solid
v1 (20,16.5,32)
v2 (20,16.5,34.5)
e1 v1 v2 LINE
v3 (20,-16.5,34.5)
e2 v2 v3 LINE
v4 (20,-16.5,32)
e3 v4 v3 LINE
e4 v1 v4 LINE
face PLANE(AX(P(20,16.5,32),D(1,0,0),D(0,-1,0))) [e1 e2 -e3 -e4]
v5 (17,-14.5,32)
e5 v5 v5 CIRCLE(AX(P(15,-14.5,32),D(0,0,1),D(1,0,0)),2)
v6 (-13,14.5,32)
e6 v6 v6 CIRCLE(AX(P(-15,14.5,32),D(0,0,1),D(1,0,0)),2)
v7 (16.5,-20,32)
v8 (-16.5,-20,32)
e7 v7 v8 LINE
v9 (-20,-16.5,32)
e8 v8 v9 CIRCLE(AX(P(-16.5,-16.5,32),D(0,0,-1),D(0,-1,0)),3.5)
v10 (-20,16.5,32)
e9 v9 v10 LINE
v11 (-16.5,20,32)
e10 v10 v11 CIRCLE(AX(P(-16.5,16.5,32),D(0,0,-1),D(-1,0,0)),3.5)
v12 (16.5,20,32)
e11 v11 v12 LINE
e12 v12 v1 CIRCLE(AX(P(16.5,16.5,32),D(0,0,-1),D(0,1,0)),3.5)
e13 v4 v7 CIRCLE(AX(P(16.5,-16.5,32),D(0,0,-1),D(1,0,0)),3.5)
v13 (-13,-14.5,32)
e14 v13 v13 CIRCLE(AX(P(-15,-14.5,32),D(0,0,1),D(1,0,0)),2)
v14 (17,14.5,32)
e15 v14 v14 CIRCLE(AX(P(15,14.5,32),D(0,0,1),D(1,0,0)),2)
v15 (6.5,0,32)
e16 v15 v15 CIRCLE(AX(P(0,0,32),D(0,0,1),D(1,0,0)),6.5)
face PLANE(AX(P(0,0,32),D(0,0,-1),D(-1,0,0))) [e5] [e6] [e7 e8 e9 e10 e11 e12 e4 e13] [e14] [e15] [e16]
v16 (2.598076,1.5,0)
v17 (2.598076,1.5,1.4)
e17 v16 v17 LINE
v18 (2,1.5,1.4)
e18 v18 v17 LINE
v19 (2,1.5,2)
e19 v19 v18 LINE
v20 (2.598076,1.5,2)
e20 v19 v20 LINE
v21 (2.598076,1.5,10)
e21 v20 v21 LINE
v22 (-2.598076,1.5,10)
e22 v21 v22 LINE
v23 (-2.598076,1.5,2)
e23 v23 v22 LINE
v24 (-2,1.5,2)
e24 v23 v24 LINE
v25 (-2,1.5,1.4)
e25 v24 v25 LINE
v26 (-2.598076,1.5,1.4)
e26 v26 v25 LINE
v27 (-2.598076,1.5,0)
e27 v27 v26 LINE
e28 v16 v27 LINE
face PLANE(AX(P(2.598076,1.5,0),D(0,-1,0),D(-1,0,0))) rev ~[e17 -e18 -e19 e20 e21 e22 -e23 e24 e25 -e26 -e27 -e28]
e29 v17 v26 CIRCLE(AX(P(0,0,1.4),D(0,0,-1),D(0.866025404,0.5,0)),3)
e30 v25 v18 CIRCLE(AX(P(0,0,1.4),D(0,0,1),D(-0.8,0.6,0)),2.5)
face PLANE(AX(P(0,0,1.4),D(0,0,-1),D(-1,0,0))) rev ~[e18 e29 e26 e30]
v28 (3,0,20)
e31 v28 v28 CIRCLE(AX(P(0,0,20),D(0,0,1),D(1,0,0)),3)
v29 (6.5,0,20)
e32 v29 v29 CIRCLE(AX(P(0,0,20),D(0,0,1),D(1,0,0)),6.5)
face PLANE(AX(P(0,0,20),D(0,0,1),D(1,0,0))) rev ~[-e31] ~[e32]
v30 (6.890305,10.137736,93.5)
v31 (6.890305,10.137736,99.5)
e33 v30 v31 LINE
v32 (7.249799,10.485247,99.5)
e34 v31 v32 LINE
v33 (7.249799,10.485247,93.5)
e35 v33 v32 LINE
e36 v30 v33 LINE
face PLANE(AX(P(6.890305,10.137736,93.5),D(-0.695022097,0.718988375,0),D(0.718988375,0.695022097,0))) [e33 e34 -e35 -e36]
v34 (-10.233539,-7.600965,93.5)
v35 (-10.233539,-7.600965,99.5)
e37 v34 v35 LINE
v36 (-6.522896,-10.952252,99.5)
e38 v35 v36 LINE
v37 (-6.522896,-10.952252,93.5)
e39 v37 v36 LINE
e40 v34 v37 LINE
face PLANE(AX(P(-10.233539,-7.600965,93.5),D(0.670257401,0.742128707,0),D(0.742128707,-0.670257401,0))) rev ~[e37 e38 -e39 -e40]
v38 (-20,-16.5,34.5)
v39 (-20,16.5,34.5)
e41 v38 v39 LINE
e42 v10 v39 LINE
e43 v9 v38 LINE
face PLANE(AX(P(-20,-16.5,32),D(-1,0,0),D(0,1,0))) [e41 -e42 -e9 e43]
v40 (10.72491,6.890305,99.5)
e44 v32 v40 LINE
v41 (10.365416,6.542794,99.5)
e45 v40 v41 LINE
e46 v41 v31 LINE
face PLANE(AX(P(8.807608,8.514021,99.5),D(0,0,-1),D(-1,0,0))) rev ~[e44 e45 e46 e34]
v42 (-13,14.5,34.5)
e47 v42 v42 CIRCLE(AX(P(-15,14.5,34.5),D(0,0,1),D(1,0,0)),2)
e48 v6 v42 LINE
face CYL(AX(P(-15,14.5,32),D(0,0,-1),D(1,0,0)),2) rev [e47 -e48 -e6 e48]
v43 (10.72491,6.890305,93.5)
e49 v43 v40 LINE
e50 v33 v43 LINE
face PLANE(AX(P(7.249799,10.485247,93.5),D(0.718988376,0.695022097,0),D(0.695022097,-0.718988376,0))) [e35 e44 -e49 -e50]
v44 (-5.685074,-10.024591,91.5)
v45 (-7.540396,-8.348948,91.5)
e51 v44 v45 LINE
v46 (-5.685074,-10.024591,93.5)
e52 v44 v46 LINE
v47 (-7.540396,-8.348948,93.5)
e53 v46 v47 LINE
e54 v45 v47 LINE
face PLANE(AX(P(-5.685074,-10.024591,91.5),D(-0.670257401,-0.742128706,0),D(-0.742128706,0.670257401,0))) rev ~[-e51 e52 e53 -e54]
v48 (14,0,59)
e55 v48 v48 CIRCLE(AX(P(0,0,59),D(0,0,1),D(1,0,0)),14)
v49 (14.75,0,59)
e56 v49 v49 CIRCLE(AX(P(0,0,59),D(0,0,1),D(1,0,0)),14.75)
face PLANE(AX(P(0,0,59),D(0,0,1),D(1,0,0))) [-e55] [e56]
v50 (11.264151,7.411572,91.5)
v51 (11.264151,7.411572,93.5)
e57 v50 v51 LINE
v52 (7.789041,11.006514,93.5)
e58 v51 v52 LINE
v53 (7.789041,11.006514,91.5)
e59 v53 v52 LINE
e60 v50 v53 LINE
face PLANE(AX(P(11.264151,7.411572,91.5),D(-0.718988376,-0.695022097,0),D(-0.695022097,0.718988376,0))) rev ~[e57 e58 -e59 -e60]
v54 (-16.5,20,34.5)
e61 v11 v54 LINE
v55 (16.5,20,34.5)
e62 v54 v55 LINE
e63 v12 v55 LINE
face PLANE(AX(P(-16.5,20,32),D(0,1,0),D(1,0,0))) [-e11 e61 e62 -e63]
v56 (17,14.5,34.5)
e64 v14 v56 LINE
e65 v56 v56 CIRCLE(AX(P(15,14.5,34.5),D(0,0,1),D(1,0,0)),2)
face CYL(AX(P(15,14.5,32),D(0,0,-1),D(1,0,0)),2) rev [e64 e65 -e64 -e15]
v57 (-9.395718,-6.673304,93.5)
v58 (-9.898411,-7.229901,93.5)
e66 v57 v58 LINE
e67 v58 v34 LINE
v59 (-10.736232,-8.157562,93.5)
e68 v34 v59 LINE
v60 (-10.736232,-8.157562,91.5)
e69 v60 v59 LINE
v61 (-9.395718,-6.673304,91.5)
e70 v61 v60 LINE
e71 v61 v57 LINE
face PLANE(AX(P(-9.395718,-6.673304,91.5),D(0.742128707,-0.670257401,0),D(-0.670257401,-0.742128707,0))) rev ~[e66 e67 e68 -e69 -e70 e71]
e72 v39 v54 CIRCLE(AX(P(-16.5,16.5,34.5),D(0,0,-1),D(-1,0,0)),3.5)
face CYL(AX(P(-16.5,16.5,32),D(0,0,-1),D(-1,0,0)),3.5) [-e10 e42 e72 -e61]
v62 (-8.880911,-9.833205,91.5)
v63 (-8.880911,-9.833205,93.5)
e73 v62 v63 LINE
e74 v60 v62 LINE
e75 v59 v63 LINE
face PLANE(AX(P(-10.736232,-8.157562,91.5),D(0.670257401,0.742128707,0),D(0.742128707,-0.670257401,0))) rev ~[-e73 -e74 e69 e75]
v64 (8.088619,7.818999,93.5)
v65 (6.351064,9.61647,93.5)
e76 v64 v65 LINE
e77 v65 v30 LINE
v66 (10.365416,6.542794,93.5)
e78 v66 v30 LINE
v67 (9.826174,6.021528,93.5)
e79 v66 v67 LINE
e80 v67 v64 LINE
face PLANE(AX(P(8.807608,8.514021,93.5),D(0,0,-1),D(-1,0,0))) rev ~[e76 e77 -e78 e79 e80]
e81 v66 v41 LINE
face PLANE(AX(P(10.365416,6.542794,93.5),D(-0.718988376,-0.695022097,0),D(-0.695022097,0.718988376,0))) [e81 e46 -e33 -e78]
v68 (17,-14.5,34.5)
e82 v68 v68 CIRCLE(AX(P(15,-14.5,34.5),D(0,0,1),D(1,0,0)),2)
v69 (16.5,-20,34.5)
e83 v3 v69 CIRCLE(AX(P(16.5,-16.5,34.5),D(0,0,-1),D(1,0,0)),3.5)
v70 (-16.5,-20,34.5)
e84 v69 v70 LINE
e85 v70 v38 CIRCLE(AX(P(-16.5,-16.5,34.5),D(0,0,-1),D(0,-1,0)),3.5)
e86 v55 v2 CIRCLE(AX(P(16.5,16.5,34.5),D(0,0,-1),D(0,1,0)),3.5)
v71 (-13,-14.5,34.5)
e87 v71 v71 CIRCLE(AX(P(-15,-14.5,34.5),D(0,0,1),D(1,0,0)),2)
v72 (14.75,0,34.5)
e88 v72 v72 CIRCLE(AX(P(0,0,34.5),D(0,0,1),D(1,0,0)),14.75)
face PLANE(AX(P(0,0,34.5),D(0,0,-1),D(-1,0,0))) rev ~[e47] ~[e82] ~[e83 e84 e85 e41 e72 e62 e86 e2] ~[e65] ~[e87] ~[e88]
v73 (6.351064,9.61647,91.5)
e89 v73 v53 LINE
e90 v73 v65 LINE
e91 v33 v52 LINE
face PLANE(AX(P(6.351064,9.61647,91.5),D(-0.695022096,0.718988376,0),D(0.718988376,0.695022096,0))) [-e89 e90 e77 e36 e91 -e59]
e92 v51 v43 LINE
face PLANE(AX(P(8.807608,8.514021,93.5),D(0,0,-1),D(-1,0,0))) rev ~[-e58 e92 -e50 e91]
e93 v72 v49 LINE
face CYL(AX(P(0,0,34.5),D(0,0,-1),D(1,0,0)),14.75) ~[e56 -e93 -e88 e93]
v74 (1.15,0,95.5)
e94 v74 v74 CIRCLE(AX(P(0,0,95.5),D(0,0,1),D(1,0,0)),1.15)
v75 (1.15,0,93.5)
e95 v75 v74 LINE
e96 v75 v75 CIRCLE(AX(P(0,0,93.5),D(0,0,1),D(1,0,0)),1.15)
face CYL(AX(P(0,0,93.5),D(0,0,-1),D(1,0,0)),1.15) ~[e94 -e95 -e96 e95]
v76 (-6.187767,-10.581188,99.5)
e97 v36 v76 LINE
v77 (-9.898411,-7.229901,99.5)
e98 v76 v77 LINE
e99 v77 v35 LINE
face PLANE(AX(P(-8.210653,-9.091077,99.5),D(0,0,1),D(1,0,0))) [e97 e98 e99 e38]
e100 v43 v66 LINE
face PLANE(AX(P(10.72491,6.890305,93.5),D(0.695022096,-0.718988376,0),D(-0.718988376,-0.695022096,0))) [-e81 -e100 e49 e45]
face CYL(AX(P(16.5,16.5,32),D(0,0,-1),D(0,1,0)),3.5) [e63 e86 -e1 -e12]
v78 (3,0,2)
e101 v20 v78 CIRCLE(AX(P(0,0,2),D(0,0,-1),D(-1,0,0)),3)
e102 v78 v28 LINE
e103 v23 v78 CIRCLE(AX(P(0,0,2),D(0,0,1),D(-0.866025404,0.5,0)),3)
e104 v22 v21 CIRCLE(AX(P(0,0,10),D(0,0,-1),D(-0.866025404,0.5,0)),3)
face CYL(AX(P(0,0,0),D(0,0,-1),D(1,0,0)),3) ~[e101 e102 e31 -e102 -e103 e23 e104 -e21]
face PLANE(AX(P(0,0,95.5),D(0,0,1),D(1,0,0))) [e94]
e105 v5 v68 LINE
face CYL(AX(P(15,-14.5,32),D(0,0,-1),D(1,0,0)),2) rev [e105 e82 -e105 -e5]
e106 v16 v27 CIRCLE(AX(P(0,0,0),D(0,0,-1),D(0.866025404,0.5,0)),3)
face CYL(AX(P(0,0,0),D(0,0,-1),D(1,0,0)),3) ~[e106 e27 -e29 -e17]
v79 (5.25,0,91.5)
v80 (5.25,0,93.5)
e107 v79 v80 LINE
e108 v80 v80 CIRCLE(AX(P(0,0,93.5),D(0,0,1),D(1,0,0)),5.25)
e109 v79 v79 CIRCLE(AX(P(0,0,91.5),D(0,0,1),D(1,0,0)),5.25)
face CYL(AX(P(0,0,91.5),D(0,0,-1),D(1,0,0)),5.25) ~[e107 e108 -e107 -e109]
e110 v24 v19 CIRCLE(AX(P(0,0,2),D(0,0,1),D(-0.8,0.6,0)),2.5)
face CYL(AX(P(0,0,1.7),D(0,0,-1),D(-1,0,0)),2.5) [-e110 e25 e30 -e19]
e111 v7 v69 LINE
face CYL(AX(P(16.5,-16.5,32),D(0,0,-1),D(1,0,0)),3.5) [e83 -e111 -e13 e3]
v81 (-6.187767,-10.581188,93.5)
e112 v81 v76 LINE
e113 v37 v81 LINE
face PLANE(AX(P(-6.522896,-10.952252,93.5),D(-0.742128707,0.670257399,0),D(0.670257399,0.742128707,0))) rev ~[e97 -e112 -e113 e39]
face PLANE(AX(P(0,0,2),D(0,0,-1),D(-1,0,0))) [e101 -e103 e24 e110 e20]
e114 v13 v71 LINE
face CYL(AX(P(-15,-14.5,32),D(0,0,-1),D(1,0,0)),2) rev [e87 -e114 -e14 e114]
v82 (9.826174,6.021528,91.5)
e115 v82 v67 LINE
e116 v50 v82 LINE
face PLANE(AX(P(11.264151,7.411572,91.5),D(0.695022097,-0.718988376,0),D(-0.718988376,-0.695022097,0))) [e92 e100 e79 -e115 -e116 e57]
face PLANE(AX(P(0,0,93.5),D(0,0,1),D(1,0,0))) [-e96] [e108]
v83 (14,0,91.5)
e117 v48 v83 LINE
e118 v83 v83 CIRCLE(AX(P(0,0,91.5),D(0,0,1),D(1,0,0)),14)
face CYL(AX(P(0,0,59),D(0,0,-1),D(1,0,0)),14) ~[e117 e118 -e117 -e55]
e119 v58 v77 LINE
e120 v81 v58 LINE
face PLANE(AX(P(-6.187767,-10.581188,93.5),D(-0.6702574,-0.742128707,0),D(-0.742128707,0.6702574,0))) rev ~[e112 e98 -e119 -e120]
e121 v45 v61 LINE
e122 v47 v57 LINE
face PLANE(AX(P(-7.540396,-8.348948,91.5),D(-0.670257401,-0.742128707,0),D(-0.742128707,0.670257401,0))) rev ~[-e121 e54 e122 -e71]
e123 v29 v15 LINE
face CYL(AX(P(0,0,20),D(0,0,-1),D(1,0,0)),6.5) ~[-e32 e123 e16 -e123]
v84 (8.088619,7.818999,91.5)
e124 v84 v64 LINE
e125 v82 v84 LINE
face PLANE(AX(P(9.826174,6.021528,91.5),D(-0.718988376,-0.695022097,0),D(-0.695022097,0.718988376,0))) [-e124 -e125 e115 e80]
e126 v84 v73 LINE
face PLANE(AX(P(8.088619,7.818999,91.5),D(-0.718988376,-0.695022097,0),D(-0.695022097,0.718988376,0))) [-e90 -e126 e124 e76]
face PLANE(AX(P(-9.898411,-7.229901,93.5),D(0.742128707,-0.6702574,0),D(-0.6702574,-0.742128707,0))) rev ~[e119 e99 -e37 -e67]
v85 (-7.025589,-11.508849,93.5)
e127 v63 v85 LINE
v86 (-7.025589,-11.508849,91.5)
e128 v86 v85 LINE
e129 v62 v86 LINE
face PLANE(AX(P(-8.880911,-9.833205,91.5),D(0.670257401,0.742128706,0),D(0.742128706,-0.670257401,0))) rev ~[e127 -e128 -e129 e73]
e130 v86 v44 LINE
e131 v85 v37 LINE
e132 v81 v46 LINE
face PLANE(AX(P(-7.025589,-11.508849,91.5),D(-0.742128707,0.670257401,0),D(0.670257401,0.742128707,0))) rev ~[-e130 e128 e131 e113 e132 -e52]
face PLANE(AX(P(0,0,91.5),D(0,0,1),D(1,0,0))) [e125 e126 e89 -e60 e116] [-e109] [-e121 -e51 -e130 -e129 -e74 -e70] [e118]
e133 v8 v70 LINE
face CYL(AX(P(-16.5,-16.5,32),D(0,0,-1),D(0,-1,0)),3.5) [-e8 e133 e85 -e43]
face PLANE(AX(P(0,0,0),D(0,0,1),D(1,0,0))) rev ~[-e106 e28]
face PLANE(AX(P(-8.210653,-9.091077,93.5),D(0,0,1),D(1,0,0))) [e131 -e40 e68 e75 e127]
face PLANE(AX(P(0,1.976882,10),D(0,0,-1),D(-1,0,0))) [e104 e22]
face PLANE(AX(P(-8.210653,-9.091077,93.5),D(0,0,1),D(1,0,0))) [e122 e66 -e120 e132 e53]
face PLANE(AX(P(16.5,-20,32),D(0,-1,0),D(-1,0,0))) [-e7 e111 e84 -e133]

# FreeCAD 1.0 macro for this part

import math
import FreeCAD as App
import Part
import Sketcher

V = App.Vector


def add_polygon(sketch, points):
    """Adds a closed chain of lines whose ends are joined by coincident constraints."""
    first, n = sketch.GeometryCount, len(points)
    for a, b in zip(points, points[1:] + points[:1]):
        sketch.addGeometry(Part.LineSegment(App.Vector(*a, 0), App.Vector(*b, 0)), False)
    for i in range(n):
        sketch.addConstraint(Sketcher.Constraint("Coincident", first + i, 2, first + (i + 1) % n, 1))

doc = App.newDocument("Part")
body = doc.addObject("PartDesign::Body", "Body")

sketch1 = body.newObject("Sketcher::SketchObject", "Sketch")
sketch1.AttachmentSupport = (doc.getObject("XY_Plane"), [""])
sketch1.MapMode = "FlatFace"
sketch1.addGeometry(Part.Circle(V(0, 0, 0), V(0, 0, 1), 3), False)
sketch1.addConstraint([
    Sketcher.Constraint("Coincident", 0, 3, -1, 1),
    Sketcher.Constraint("Diameter", 0, 6.0),
])
pad1 = body.newObject("PartDesign::Pad", "Pad")
pad1.Profile = sketch1
pad1.Length = 20

sketch2 = body.newObject("Sketcher::SketchObject", "Sketch001")
sketch2.AttachmentSupport = (doc.getObject("XY_Plane"), [""])
sketch2.MapMode = "FlatFace"
sketch2.AttachmentOffset = App.Placement(V(0, 0, 20), App.Rotation())
sketch2.addGeometry(Part.Circle(V(0, 0, 0), V(0, 0, 1), 6), False)
sketch2.addConstraint([
    Sketcher.Constraint("Coincident", 0, 3, -1, 1),
    Sketcher.Constraint("Diameter", 0, 13.0),
])
pad2 = body.newObject("PartDesign::Pad", "Pad001")
pad2.Profile = sketch2
pad2.Length = 12

sketch3 = body.newObject("Sketcher::SketchObject", "Sketch002")
sketch3.AttachmentSupport = (doc.getObject("XY_Plane"), [""])
sketch3.MapMode = "FlatFace"
sketch3.AttachmentOffset = App.Placement(V(0, 0, 32), App.Rotation())
sketch3.addGeometry([
    Part.LineSegment(V(-16.5, -20, 0), V(16.5, -20, 0)),
    Part.ArcOfCircle(Part.Circle(V(16.5, -16.5, 0), V(0, 0, 1), 3.5), math.radians(-90), math.radians(0)),
    Part.LineSegment(V(20, -16.5, 0), V(20, 16.5, 0)),
    Part.ArcOfCircle(Part.Circle(V(16.5, 16.5, 0), V(0, 0, 1), 3.5), math.radians(0), math.radians(90)),
    Part.LineSegment(V(16.5, 20, 0), V(-16.5, 20, 0)),
    Part.ArcOfCircle(Part.Circle(V(-16.5, 16.5, 0), V(0, 0, 1), 3.5), math.radians(90), math.radians(180)),
    Part.LineSegment(V(-20, 16.5, 0), V(-20, -16.5, 0)),
    Part.ArcOfCircle(Part.Circle(V(-16.5, -16.5, 0), V(0, 0, 1), 3.5), math.radians(-180), math.radians(-90)),
    Part.Circle(V(15, -14.5, 0), V(0, 0, 1), 2),
    Part.Circle(V(-15, -14.5, 0), V(0, 0, 1), 2),
    Part.Circle(V(15, 14.5, 0), V(0, 0, 1), 2),
    Part.Circle(V(-15, 14.5, 0), V(0, 0, 1), 2),
], False)
sketch3.addConstraint([
    Sketcher.Constraint("Tangent", 0, 2, 1, 1),
    Sketcher.Constraint("Tangent", 1, 2, 2, 1),
    Sketcher.Constraint("Tangent", 2, 2, 3, 1),
    Sketcher.Constraint("Tangent", 3, 2, 4, 1),
    Sketcher.Constraint("Tangent", 4, 2, 5, 1),
    Sketcher.Constraint("Tangent", 5, 2, 6, 1),
    Sketcher.Constraint("Tangent", 6, 2, 7, 1),
    Sketcher.Constraint("Tangent", 7, 2, 0, 1),
    Sketcher.Constraint("Horizontal", 0),
    Sketcher.Constraint("Vertical", 2),
    Sketcher.Constraint("Horizontal", 4),
    Sketcher.Constraint("Vertical", 6),
    Sketcher.Constraint("Equal", 1, 3),
    Sketcher.Constraint("Equal", 3, 5),
    Sketcher.Constraint("Equal", 5, 7),
    Sketcher.Constraint("Equal", 8, 9),
    Sketcher.Constraint("Equal", 9, 10),
    Sketcher.Constraint("Equal", 10, 11),
    Sketcher.Constraint("Symmetric", 1, 3, 5, 3, -1, 1),
    Sketcher.Constraint("Symmetric", 9, 3, 10, 3, -1, 1),
    Sketcher.Constraint("Symmetric", 8, 3, 11, 3, -1, 1),
    Sketcher.Constraint("Symmetric", 8, 3, 9, 3, -2),
    Sketcher.Constraint("Equal", 4, 2),
    Sketcher.Constraint("Diameter", 8, 4.0),
    Sketcher.Constraint("Radius", 1, 3.5),
    Sketcher.Constraint("DistanceX", 0, 1, 0, 2, 33.0),
    Sketcher.Constraint("DistanceX", -1, 1, 8, 3, 15.0),
    Sketcher.Constraint("DistanceY", 1, 3, 8, 3, 2.0),
])
pad3 = body.newObject("PartDesign::Pad", "Pad002")
pad3.Profile = sketch3
pad3.Length = 2.5

sketch4 = body.newObject("Sketcher::SketchObject", "Sketch003")
sketch4.AttachmentSupport = (doc.getObject("XY_Plane"), [""])
sketch4.MapMode = "FlatFace"
sketch4.AttachmentOffset = App.Placement(V(0, 0, 34.5), App.Rotation())
sketch4.addGeometry(Part.Circle(V(0, 0, 0), V(0, 0, 1), 15), False)
sketch4.addConstraint([
    Sketcher.Constraint("Coincident", 0, 3, -1, 1),
    Sketcher.Constraint("Diameter", 0, 29.5),
])
pad4 = body.newObject("PartDesign::Pad", "Pad003")
pad4.Profile = sketch4
pad4.Length = 24.5

sketch5 = body.newObject("Sketcher::SketchObject", "Sketch004")
sketch5.AttachmentSupport = (doc.getObject("XY_Plane"), [""])
sketch5.MapMode = "FlatFace"
sketch5.AttachmentOffset = App.Placement(V(0, 0, 59), App.Rotation())
sketch5.addGeometry(Part.Circle(V(0, 0, 0), V(0, 0, 1), 14), False)
sketch5.addConstraint([
    Sketcher.Constraint("Coincident", 0, 3, -1, 1),
    Sketcher.Constraint("Diameter", 0, 28.0),
])
pad5 = body.newObject("PartDesign::Pad", "Pad004")
pad5.Profile = sketch5
pad5.Length = 32.5

sketch6 = body.newObject("Sketcher::SketchObject", "Sketch005")
sketch6.AttachmentSupport = (doc.getObject("XY_Plane"), [""])
sketch6.MapMode = "FlatFace"
sketch6.AttachmentOffset = App.Placement(V(0, 0, 91.5), App.Rotation())
sketch6.addGeometry(Part.Circle(V(0, 0, 0), V(0, 0, 1), 5), False)
sketch6.addConstraint([
    Sketcher.Constraint("Coincident", 0, 3, -1, 1),
    Sketcher.Constraint("Diameter", 0, 10.5),
])
pad6 = body.newObject("PartDesign::Pad", "Pad005")
pad6.Profile = sketch6
pad6.Length = 2

sketch7 = body.newObject("Sketcher::SketchObject", "Sketch006")
sketch7.AttachmentSupport = (doc.getObject("XY_Plane"), [""])
sketch7.MapMode = "FlatFace"
sketch7.AttachmentOffset = App.Placement(V(0, 0, 93.5), App.Rotation())
sketch7.addGeometry(Part.Circle(V(0, 0, 0), V(0, 0, 1), 1.1), False)
sketch7.addConstraint([
    Sketcher.Constraint("Coincident", 0, 3, -1, 1),
    Sketcher.Constraint("Diameter", 0, 2.3),
])
pad7 = body.newObject("PartDesign::Pad", "Pad006")
pad7.Profile = sketch7
pad7.Length = 2

sketch8 = body.newObject("Sketcher::SketchObject", "Sketch007")
sketch8.AttachmentSupport = (doc.getObject("XY_Plane"), [""])
sketch8.MapMode = "FlatFace"
sketch8.AttachmentOffset = App.Placement(V(0, 0, 91.5), App.Rotation())
add_polygon(sketch8, [(6.4, 9.6), (8.1, 7.8), (9.8, 6), (11.3, 7.4), (7.8, 11)])
add_polygon(sketch8, [(-9.4, -6.7), (-10.7, -8.2), (-8.9, -9.8), (-7, -11.5), (-5.7, -10), (-7.5, -8.3)])
sketch8.addConstraint([
    Sketcher.Constraint("Parallel", 0, 1),
    Sketcher.Constraint("Perpendicular", 1, 2),
    Sketcher.Constraint("Perpendicular", 2, 3),
    Sketcher.Constraint("Perpendicular", 3, 4),
    Sketcher.Constraint("Perpendicular", 5, 6),
    Sketcher.Constraint("Parallel", 6, 7),
    Sketcher.Constraint("Perpendicular", 7, 8),
    Sketcher.Constraint("Perpendicular", 8, 9),
    Sketcher.Constraint("Parallel", 9, 10),
    Sketcher.Constraint("Equal", 0, 1),
    Sketcher.Constraint("Equal", 4, 5),
    Sketcher.Constraint("Equal", 1, 6),
    Sketcher.Constraint("Equal", 6, 7),
    Sketcher.Constraint("Equal", 7, 9),
    Sketcher.Constraint("Distance", 2, 2.0),
    Sketcher.Constraint("Distance", 3, 5.0),
    Sketcher.Constraint("DistanceY", -1, 1, 0, 2, 7.818999),
    Sketcher.Constraint("DistanceY", 7, 2, 9, 2, 3.159901),
    Sketcher.Constraint("DistanceX", -1, 1, 0, 2, 8.088619),
    Sketcher.Constraint("DistanceX", -1, 1, 2, 2, 11.264151),
    Sketcher.Constraint("DistanceY", 5, 2, -1, 1, 8.157562),
    Sketcher.Constraint("DistanceX", 6, 2, -1, 1, 8.880911),
])
pad8 = body.newObject("PartDesign::Pad", "Pad007")
pad8.Profile = sketch8
pad8.Length = 2

sketch9 = body.newObject("Sketcher::SketchObject", "Sketch008")
sketch9.AttachmentSupport = (doc.getObject("XY_Plane"), [""])
sketch9.MapMode = "FlatFace"
sketch9.AttachmentOffset = App.Placement(V(0, 0, 93.5), App.Rotation())
add_polygon(sketch9, [(-6.187767, -10.581188), (-9.898411, -7.229901), (-10.233539, -7.600965), (-6.522896, -10.952252)])
add_polygon(sketch9, [(7.249799, 10.485247), (6.890305, 10.137736), (10.365416, 6.542794), (10.72491, 6.890305)])
sketch9.addConstraint([
    Sketcher.Constraint("Distance", 0, 5.0),
    Sketcher.Constraint("Distance", 2, 5.0),
    Sketcher.Constraint("Distance", 5, 5.0),
    Sketcher.Constraint("Distance", 7, 5.0),
    Sketcher.Constraint("Distance", 1, 0.5),
    Sketcher.Constraint("Distance", 3, 0.5),
    Sketcher.Constraint("Distance", 4, 0.5),
    Sketcher.Constraint("Distance", 6, 0.5),
    Sketcher.Constraint("DistanceY", 0, 2, -1, 1, 7.229901),
    Sketcher.Constraint("DistanceX", -1, 1, 7, 2, 7.249799),
    Sketcher.Constraint("DistanceY", 1, 2, 4, 2, 17.738701),
    Sketcher.Constraint("DistanceX", 2, 2, 4, 2, 13.413201),
    Sketcher.Constraint("DistanceX", 0, 2, -1, 1, 9.898411),
    Sketcher.Constraint("DistanceX", 1, 2, -1, 1, 10.233539),
    Sketcher.Constraint("DistanceX", -1, 1, 6, 2, 10.72491),
    Sketcher.Constraint("DistanceY", 2, 2, 0, 2, 3.722351),
])
pad9 = body.newObject("PartDesign::Pad", "Pad008")
pad9.Profile = sketch9
pad9.Length = 6

sketch10 = body.newObject("Sketcher::SketchObject", "Sketch009")
sketch10.AttachmentSupport = (doc.getObject("XY_Plane"), [""])
sketch10.MapMode = "FlatFace"
sketch10.addGeometry([
    Part.LineSegment(V(2.6, 1.5, 0), V(-2.6, 1.5, 0)),
    Part.ArcOfCircle(Part.Circle(V(0, 0, 0), V(0, 0, 1), 3), math.radians(30), math.radians(150)),
], False)
sketch10.addConstraint([
    Sketcher.Constraint("Coincident", 0, 1, 1, 1),
    Sketcher.Constraint("Coincident", 1, 2, 0, 2),
    Sketcher.Constraint("Horizontal", 0),
    Sketcher.Constraint("Coincident", 1, 3, -1, 1),
    Sketcher.Constraint("Radius", 1, 3.0),
    Sketcher.Constraint("DistanceY", -1, 1, 0, 1, 1.5),
])
pocket1 = body.newObject("PartDesign::Pocket", "Pocket")
pocket1.Profile = sketch10
pocket1.Length = 10
pocket1.Reversed = True

sketch11 = body.newObject("Sketcher::SketchObject", "Sketch010")
sketch11.AttachmentSupport = (doc.getObject("XZ_Plane"), [""])
sketch11.MapMode = "FlatFace"
add_polygon(sketch11, [(-3, 1.4), (-3, 2), (-2.5, 2), (-2.5, 1.4)])
sketch11.addConstraint([
    Sketcher.Constraint("Vertical", 0),
    Sketcher.Constraint("Horizontal", 1),
    Sketcher.Constraint("Vertical", 2),
    Sketcher.Constraint("Horizontal", 3),
    Sketcher.Constraint("DistanceX", 1, 1, 1, 2, 0.5),
    Sketcher.Constraint("DistanceY", 0, 1, 0, 2, 0.6),
    Sketcher.Constraint("DistanceX", 0, 2, -1, 1, 3.0),
    Sketcher.Constraint("DistanceY", -1, 1, 0, 2, 2.0),
])
groove = body.newObject("PartDesign::Groove", "Groove")
groove.Profile = sketch11
groove.ReferenceAxis = (sketch11, ["V_Axis"])
groove.Angle = 360

doc.recompute()
